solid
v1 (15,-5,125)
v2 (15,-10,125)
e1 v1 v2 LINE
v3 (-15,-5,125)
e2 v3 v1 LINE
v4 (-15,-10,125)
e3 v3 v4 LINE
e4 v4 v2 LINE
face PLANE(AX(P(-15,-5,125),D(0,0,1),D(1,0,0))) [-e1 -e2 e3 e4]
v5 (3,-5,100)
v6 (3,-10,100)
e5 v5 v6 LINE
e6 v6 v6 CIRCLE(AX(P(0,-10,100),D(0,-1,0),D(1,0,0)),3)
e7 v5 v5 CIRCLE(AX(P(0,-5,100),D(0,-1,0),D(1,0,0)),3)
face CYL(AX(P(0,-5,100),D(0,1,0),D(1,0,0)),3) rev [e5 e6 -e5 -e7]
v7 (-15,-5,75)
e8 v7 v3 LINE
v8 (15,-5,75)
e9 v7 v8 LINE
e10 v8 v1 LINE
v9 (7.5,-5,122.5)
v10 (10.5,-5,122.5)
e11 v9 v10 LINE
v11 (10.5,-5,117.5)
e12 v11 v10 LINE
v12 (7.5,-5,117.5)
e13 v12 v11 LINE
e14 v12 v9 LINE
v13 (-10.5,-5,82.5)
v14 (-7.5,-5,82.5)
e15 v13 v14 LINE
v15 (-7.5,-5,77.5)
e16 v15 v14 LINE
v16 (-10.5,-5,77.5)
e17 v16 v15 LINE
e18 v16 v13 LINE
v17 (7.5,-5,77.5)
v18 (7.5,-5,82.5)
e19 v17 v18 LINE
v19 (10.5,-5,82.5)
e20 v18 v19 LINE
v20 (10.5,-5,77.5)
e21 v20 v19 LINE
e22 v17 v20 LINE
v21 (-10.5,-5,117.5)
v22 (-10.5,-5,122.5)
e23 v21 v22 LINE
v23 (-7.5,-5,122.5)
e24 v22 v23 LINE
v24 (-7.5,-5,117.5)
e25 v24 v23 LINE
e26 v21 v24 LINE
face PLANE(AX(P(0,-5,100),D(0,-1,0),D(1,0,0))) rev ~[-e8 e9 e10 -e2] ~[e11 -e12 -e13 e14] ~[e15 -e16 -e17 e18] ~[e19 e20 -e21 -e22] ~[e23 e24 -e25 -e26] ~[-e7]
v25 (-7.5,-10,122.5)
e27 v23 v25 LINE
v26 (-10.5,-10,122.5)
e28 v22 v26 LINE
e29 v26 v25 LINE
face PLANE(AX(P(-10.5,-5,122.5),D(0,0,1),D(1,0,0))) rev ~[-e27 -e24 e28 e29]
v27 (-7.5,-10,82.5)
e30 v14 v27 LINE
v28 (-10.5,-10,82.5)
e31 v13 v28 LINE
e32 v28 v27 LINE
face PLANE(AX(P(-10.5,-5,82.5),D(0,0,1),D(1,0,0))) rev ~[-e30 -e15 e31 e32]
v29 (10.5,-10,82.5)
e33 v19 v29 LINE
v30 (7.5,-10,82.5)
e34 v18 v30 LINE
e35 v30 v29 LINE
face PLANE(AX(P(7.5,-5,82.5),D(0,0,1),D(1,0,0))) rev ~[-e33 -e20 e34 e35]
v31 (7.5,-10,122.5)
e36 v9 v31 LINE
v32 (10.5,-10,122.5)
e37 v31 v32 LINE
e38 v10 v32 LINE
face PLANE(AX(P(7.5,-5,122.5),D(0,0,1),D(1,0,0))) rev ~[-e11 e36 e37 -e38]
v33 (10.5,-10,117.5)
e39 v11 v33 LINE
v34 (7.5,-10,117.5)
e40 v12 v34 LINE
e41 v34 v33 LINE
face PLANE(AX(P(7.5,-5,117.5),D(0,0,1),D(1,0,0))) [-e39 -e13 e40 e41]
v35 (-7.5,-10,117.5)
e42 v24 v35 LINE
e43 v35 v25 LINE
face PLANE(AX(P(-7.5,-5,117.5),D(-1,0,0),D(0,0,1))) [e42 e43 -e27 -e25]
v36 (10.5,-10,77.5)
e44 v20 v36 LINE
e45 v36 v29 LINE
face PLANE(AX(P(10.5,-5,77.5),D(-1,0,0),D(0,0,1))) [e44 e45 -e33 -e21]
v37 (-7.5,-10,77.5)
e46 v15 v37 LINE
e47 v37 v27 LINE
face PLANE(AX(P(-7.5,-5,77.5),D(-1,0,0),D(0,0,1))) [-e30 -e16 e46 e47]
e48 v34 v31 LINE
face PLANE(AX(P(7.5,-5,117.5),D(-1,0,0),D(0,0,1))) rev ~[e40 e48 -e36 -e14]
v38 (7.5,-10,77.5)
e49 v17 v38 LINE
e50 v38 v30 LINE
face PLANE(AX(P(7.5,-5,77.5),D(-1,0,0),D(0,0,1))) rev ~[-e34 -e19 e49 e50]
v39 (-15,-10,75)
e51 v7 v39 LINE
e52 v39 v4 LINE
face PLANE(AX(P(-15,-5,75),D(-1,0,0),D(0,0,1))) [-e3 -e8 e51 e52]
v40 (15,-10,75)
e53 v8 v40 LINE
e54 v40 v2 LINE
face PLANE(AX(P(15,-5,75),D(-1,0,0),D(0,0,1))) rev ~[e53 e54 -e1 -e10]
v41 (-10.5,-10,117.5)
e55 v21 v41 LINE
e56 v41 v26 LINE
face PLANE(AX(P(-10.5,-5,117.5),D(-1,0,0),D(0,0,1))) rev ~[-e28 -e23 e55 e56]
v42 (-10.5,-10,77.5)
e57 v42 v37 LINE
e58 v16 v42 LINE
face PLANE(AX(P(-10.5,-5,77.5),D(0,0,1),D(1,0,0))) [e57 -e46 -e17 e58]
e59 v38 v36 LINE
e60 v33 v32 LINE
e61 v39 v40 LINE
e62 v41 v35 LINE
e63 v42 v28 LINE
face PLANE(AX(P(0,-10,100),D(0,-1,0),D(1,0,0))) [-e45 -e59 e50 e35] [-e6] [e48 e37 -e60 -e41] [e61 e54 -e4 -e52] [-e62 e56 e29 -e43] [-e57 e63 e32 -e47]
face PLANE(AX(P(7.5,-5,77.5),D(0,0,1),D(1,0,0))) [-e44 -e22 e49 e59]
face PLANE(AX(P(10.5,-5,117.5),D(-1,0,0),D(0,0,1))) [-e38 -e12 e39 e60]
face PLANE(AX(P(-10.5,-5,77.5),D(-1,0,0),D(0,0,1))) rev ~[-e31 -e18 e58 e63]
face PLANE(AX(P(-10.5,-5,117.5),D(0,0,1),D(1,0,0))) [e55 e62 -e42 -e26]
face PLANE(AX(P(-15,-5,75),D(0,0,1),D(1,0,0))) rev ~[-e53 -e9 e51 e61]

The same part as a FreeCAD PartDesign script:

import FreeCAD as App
import Part
import Sketcher
from FreeCAD import Vector
Q = App.Units.Quantity


def add_polygon(sketch, points):
    """Adds a closed chain of lines whose ends are joined by coincident constraints."""
    first, n = sketch.GeometryCount, len(points)
    for a, b in zip(points, points[1:] + points[:1]):
        sketch.addGeometry(Part.LineSegment(App.Vector(*a, 0), App.Vector(*b, 0)), False)
    for i in range(n):
        sketch.addConstraint(Sketcher.Constraint("Coincident", first + i, 2, first + (i + 1) % n, 1))

doc = App.newDocument("Part")
body = doc.addObject("PartDesign::Body", "Body")

sketch1 = body.newObject("Sketcher::SketchObject", "Sketch")
sketch1.AttachmentSupport = (doc.getObject("XZ_Plane"), [""])
sketch1.MapMode = "FlatFace"
sketch1.AttachmentOffset = App.Placement(Vector(0, 0, 5), App.Rotation())
add_polygon(sketch1, [(-15, 125), (-15, 75), (15, 75), (15, 125)])
add_polygon(sketch1, [(-7.5, 77.5), (-10.5, 77.5), (-10.5, 82.5), (-7.5, 82.5)])
add_polygon(sketch1, [(10.5, 77.5), (7.5, 77.5), (7.5, 82.5), (10.5, 82.5)])
add_polygon(sketch1, [(-7.5, 117.5), (-10.5, 117.5), (-10.5, 122.5), (-7.5, 122.5)])
sketch1.addGeometry(Part.Circle(Vector(0, 100, 0), Vector(0, 0, 1), 3), False)
add_polygon(sketch1, [(10.5, 117.5), (7.5, 117.5), (7.5, 122.5), (10.5, 122.5)])
sketch1.addConstraint(Sketcher.Constraint("Vertical", 0))
sketch1.addConstraint(Sketcher.Constraint("Horizontal", 1))
sketch1.addConstraint(Sketcher.Constraint("Vertical", 2))
sketch1.addConstraint(Sketcher.Constraint("Horizontal", 3))
sketch1.addConstraint(Sketcher.Constraint("Horizontal", 4))
sketch1.addConstraint(Sketcher.Constraint("Vertical", 5))
sketch1.addConstraint(Sketcher.Constraint("Horizontal", 6))
sketch1.addConstraint(Sketcher.Constraint("Vertical", 7))
sketch1.addConstraint(Sketcher.Constraint("Horizontal", 8))
sketch1.addConstraint(Sketcher.Constraint("Vertical", 9))
sketch1.addConstraint(Sketcher.Constraint("Horizontal", 10))
sketch1.addConstraint(Sketcher.Constraint("Vertical", 11))
sketch1.addConstraint(Sketcher.Constraint("Horizontal", 12))
sketch1.addConstraint(Sketcher.Constraint("Vertical", 13))
sketch1.addConstraint(Sketcher.Constraint("Horizontal", 14))
sketch1.addConstraint(Sketcher.Constraint("Vertical", 15))
sketch1.addConstraint(Sketcher.Constraint("Horizontal", 17))
sketch1.addConstraint(Sketcher.Constraint("Vertical", 18))
sketch1.addConstraint(Sketcher.Constraint("Horizontal", 19))
sketch1.addConstraint(Sketcher.Constraint("Vertical", 20))
sketch1.addConstraint(Sketcher.Constraint("Symmetric", 7, 2, 8, 2, -2))
sketch1.addConstraint(Sketcher.Constraint("Symmetric", 5, 2, 10, 2, -2))
sketch1.addConstraint(Sketcher.Constraint("Symmetric", 15, 2, 17, 2, -2))
sketch1.addConstraint(Sketcher.Constraint("Symmetric", 13, 2, 19, 2, -2))
sketch1.addConstraint(Sketcher.Constraint("PointOnObject", 16, 3, -2))
sketch1.addConstraint(Sketcher.Constraint("Vertical", 5, 2, 12, 2))
sketch1.addConstraint(Sketcher.Constraint("Vertical", 7, 2, 14, 2))
sketch1.addConstraint(Sketcher.Constraint("Equal", 11, 13))
sketch1.addConstraint(Sketcher.Constraint("Diameter", 16, Q("6 mm")))
sketch1.addConstraint(Sketcher.Constraint("DistanceX", 1, 1, 1, 2, Q("30 mm")))
sketch1.addConstraint(Sketcher.Constraint("DistanceX", 4, 2, 4, 1, Q("3 mm")))
sketch1.addConstraint(Sketcher.Constraint("DistanceY", 0, 2, 0, 1, Q("50 mm")))
sketch1.addConstraint(Sketcher.Constraint("DistanceY", 5, 1, 5, 2, Q("5 mm")))
sketch1.addConstraint(Sketcher.Constraint("DistanceY", -1, 1, 16, 3, Q("100 mm")))
sketch1.addConstraint(Sketcher.Constraint("DistanceX", 0, 2, -1, 1, Q("15 mm")))
sketch1.addConstraint(Sketcher.Constraint("DistanceY", -1, 1, 0, 2, Q("75 mm")))
sketch1.addConstraint(Sketcher.Constraint("DistanceX", 7, 2, 8, 2, Q("15 mm")))
sketch1.addConstraint(Sketcher.Constraint("DistanceY", 5, 2, 12, 2, Q("35 mm")))
sketch1.addConstraint(Sketcher.Constraint("DistanceY", -1, 1, 4, 2, Q("77.5 mm")))
pad1 = body.newObject("PartDesign::Pad", "Pad")
pad1.Profile = sketch1
pad1.Length = 5

doc.recompute()
